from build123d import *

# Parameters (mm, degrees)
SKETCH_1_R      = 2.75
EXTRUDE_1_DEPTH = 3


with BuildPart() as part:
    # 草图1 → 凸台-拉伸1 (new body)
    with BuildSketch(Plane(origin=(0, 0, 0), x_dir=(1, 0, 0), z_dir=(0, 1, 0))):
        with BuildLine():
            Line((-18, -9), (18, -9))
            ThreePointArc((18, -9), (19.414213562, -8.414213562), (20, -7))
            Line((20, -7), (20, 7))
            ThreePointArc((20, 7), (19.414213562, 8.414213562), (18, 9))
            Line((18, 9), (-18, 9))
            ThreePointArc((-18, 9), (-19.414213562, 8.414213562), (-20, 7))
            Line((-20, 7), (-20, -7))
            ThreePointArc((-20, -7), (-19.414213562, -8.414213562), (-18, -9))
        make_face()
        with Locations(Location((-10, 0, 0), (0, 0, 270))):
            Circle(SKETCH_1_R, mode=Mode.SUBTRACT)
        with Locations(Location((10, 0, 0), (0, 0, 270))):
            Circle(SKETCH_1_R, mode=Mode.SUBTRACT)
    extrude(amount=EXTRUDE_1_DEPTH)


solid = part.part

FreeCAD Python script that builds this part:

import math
import FreeCAD as App
import Part
import Sketcher

V = App.Vector

doc = App.newDocument("Part")
params = doc.addObject("Spreadsheet::Sheet", "Params")
for row, (alias, value) in enumerate([
    ("sketch1_radius", "2 mm"),
    ("sketch1_diameter", "5.5 mm"),
    ("sketch1_width", "36 mm"),
    ("sketch1_height", "14 mm"),
    ("pad1_length", "3 mm"),
], start=1):
    params.set(f"A{row}", alias)
    params.set(f"B{row}", "=" + value)
    params.setAlias(f"B{row}", alias)

body = doc.addObject("PartDesign::Body", "Body")

# Sketch on XZ plane
sketch1 = doc.addObject("Sketcher::SketchObject", "Sketch")
body.addObject(sketch1)
sketch1.AttachmentSupport = (doc.XZ_Plane, [""])
sketch1.MapMode = "FlatFace"
sketch1.addGeometry([
    Part.LineSegment(V(-18, 9, 0), V(18, 9, 0)),  # 0
    Part.ArcOfCircle(Part.Circle(V(18, 7, 0), V(0, 0, 1), 2), math.radians(0), math.radians(90)),  # 1
    Part.LineSegment(V(20, 7, 0), V(20, -7, 0)),  # 2
    Part.ArcOfCircle(Part.Circle(V(18, -7, 0), V(0, 0, 1), 2), math.radians(-90), math.radians(0)),  # 3
    Part.LineSegment(V(18, -9, 0), V(-18, -9, 0)),  # 4
    Part.ArcOfCircle(Part.Circle(V(-18, -7, 0), V(0, 0, 1), 2), math.radians(-180), math.radians(-90)),  # 5
    Part.LineSegment(V(-20, -7, 0), V(-20, 7, 0)),  # 6
    Part.ArcOfCircle(Part.Circle(V(-18, 7, 0), V(0, 0, 1), 2), math.radians(90), math.radians(180)),  # 7
    Part.Circle(V(-10, 0, 0), V(0, 0, 1), 2.75),  # 8
    Part.Circle(V(10, 0, 0), V(0, 0, 1), 2.75),  # 9
], False)
sketch1.addConstraint([
    Sketcher.Constraint("Tangent", 0, 2, 1, 2),
    Sketcher.Constraint("Tangent", 1, 1, 2, 1),
    Sketcher.Constraint("Tangent", 2, 2, 3, 2),
    Sketcher.Constraint("Tangent", 3, 1, 4, 1),
    Sketcher.Constraint("Tangent", 4, 2, 5, 2),
    Sketcher.Constraint("Tangent", 5, 1, 6, 1),
    Sketcher.Constraint("Tangent", 6, 2, 7, 2),
    Sketcher.Constraint("Tangent", 7, 1, 0, 1),
    Sketcher.Constraint("Horizontal", 0),
    Sketcher.Constraint("Vertical", 2),
    Sketcher.Constraint("Horizontal", 4),
    Sketcher.Constraint("Vertical", 6),
    Sketcher.Constraint("Equal", 1, 3),
    Sketcher.Constraint("Equal", 3, 5),
    Sketcher.Constraint("Equal", 5, 7),
    Sketcher.Constraint("Equal", 8, 9),
    Sketcher.Constraint("Symmetric", 1, 3, 5, 3, -1, 1),
    Sketcher.Constraint("Symmetric", 8, 3, 9, 3, -1, 1),
    Sketcher.Constraint("PointOnObject", 8, 3, -1),
    Sketcher.Constraint("Radius", 1, 2.0),
    Sketcher.Constraint("Diameter", 8, 5.5),
    Sketcher.Constraint("DistanceX", 0, 1, 0, 2, 36.0),
    Sketcher.Constraint("DistanceY", 2, 2, 2, 1, 14.0),
    Sketcher.Constraint("DistanceX", 8, 3, -1, 1, 10.0),
])
sketch1.setExpression("Constraints[19]", "Params.sketch1_radius")
sketch1.setExpression("Constraints[20]", "Params.sketch1_diameter")
sketch1.setExpression("Constraints[21]", "Params.sketch1_width")
sketch1.setExpression("Constraints[22]", "Params.sketch1_height")
pad1 = doc.addObject("PartDesign::Pad", "Pad")
body.addObject(pad1)
pad1.Profile = sketch1
pad1.setExpression("Length", "Params.pad1_length")
pad1.Reversed = True

doc.recompute()
